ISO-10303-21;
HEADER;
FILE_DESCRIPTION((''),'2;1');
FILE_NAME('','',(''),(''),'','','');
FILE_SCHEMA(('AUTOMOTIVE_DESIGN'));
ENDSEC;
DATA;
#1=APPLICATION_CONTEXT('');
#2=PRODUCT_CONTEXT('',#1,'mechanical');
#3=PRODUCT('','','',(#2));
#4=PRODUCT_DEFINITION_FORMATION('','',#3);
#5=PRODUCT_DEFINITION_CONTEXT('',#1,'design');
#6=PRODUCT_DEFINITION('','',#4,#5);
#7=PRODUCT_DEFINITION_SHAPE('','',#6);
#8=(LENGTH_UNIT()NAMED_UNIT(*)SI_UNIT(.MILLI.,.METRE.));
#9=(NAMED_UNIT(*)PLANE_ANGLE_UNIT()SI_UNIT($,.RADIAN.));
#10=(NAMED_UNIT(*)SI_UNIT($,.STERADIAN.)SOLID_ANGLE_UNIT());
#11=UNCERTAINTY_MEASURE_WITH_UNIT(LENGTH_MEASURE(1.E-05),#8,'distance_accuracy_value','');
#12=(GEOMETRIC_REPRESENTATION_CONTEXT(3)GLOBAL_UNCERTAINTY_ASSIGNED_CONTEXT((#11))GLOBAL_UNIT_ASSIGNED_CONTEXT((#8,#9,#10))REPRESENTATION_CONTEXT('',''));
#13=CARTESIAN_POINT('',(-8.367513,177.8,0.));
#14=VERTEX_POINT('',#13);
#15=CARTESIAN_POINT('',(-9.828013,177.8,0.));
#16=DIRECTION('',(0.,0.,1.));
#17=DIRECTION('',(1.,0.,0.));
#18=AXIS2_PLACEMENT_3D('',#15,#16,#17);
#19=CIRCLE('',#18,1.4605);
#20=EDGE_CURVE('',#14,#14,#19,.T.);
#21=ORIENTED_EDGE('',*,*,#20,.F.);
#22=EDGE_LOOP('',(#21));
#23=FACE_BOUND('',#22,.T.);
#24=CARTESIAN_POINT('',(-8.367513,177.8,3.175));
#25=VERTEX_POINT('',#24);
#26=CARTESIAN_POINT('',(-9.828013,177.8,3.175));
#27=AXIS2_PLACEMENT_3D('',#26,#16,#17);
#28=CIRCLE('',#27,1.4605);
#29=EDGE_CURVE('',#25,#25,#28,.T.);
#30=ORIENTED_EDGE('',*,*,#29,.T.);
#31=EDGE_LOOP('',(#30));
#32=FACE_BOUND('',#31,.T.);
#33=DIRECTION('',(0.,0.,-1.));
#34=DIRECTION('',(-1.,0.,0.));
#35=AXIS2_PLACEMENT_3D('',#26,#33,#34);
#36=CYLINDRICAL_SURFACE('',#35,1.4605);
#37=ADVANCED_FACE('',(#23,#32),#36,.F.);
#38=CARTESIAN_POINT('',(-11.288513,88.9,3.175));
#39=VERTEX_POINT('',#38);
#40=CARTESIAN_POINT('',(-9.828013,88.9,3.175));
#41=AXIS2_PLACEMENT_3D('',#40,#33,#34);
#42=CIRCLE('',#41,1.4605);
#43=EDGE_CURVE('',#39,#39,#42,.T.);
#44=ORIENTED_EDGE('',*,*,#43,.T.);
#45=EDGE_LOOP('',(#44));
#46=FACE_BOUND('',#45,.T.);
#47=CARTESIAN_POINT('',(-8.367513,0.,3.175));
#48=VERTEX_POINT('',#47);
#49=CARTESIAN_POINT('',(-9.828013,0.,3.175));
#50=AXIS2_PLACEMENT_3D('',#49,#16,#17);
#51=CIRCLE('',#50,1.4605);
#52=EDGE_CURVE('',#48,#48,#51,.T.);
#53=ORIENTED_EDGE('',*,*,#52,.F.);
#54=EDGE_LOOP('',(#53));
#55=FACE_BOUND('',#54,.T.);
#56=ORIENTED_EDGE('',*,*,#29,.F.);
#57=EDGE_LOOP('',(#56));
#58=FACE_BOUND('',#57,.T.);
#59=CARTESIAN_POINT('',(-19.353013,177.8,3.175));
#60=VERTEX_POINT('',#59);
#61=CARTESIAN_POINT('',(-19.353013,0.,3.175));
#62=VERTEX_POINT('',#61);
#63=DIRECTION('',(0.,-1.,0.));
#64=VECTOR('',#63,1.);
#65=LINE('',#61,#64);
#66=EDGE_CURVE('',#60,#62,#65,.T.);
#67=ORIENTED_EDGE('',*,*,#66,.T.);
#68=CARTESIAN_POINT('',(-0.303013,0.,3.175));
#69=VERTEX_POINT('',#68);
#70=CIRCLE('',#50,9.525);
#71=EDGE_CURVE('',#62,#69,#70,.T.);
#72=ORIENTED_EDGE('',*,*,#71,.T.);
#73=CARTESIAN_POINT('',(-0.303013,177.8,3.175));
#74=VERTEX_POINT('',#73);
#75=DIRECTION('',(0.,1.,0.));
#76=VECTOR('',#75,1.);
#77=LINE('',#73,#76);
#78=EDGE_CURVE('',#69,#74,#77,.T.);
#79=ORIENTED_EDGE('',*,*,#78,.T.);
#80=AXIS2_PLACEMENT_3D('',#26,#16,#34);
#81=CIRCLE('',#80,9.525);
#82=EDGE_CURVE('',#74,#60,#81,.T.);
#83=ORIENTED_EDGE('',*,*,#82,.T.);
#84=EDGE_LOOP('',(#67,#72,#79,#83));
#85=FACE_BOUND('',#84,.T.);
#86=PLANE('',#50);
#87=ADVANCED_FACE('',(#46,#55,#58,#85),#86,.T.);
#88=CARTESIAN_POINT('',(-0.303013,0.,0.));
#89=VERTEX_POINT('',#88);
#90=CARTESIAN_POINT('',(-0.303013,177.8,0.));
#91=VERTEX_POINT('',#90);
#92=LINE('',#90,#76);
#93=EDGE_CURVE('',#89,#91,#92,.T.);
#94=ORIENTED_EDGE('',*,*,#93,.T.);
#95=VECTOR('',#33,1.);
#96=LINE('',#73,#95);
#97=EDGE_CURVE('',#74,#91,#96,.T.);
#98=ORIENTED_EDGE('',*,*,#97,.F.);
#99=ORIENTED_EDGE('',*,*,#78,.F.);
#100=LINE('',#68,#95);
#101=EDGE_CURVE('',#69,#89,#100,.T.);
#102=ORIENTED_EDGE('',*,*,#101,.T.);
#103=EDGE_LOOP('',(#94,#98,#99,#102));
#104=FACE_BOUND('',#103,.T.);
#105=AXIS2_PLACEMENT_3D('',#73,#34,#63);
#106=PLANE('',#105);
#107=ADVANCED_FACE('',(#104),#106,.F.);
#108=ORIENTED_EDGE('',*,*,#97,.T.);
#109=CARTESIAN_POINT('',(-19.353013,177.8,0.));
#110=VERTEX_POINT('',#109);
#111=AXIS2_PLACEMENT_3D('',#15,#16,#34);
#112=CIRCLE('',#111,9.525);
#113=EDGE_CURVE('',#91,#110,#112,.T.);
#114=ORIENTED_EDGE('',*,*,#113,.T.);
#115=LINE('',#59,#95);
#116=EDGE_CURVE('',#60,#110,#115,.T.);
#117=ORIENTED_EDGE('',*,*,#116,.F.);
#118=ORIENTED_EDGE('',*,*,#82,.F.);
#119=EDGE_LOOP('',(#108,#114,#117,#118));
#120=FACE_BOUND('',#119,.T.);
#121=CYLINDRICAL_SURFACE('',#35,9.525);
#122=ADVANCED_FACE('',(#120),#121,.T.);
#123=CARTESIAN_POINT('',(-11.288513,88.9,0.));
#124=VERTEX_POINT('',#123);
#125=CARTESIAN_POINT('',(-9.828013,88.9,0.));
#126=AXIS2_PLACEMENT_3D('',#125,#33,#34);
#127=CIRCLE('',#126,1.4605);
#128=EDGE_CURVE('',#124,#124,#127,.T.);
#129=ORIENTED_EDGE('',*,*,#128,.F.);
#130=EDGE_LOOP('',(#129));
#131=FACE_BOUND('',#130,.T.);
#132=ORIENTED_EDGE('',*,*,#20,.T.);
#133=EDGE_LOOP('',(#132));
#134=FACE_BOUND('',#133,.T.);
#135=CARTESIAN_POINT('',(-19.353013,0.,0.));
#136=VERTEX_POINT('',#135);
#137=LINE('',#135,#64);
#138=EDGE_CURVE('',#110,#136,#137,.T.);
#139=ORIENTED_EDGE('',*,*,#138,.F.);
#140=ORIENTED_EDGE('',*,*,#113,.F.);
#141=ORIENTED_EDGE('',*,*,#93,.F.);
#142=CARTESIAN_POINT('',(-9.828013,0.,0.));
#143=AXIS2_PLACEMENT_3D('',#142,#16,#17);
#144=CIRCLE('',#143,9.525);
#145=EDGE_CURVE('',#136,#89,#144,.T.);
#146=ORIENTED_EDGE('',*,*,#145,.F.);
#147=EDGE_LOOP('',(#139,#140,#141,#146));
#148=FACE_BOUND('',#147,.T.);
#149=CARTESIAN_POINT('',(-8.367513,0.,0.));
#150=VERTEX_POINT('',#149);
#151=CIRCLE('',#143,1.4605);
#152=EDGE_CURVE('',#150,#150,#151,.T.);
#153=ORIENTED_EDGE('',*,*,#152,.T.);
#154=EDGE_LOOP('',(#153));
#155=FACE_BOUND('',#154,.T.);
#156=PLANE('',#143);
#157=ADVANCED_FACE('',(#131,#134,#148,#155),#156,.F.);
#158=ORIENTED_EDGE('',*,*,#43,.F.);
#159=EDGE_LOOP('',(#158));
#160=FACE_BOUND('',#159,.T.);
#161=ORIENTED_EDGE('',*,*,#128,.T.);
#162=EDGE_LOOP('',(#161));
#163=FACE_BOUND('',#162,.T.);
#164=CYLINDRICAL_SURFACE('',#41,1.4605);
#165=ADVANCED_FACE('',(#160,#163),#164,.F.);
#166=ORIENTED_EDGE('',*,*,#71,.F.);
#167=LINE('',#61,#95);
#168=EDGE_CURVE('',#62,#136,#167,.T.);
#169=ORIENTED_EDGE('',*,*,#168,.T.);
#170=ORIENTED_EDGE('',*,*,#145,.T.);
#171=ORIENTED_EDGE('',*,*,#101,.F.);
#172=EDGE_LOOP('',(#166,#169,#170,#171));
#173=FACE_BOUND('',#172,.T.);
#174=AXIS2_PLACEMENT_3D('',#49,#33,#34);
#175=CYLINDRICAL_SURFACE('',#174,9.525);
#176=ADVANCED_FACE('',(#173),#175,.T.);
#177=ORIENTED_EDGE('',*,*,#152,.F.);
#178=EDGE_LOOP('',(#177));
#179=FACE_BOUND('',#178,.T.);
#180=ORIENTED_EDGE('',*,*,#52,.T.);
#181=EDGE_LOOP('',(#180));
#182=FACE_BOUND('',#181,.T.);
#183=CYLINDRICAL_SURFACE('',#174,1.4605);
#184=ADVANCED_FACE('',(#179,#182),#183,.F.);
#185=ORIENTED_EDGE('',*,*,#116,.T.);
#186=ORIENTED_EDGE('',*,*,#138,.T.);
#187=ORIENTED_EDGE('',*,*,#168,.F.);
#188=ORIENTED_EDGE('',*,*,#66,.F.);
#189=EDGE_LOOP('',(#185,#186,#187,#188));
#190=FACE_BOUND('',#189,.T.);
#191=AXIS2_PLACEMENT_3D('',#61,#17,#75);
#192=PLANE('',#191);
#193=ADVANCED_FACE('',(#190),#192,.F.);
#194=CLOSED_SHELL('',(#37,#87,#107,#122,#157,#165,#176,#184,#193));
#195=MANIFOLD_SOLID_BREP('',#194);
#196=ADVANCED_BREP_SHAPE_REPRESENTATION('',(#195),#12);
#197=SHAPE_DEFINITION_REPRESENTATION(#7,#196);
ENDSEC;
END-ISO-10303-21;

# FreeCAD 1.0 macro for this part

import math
import FreeCAD as App
import Part
import Sketcher

V = App.Vector
Q = App.Units.Quantity

doc = App.newDocument("Part")
body = doc.addObject("PartDesign::Body", "Body")

# Sketch on XY plane
sketch1 = body.newObject("Sketcher::SketchObject", "Sketch")
sketch1.AttachmentSupport = (doc.getObject("XY_Plane"), [""])
sketch1.MapMode = "FlatFace"
sketch1.addGeometry([
    Part.LineSegment(V(-19.353013, 177.8, 0), V(-19.353013, 0, 0)),  # 0
    Part.ArcOfCircle(Part.Circle(V(-9.828013, 0, 0), V(0, 0, 1), 9.525), math.radians(180), math.radians(360)),  # 1
    Part.LineSegment(V(-0.303013, 0, 0), V(-0.303013, 177.8, 0)),  # 2
    Part.ArcOfCircle(Part.Circle(V(-9.828013, 177.8, 0), V(0, 0, 1), 9.525), math.radians(0), math.radians(180)),  # 3
    Part.Circle(V(-9.828013, 0, 0), V(0, 0, 1), 1.4605),  # 4
    Part.Circle(V(-9.828013, 177.8, 0), V(0, 0, 1), 1.4605),  # 5
], False)
sketch1.addConstraint([
    Sketcher.Constraint("Tangent", 0, 2, 1, 1),
    Sketcher.Constraint("Tangent", 1, 2, 2, 1),
    Sketcher.Constraint("Tangent", 2, 2, 3, 1),
    Sketcher.Constraint("Tangent", 3, 2, 0, 1),
    Sketcher.Constraint("Vertical", 0),
    Sketcher.Constraint("Vertical", 2),
    Sketcher.Constraint("Coincident", 4, 3, 1, 3),
    Sketcher.Constraint("Coincident", 5, 3, 3, 3),
    Sketcher.Constraint("Equal", 4, 5),
    Sketcher.Constraint("PointOnObject", 1, 3, -1),
    Sketcher.Constraint("DistanceY", 0, 2, 0, 1, Q("7 in")),
    Sketcher.Constraint("Diameter", 4, Q("0.115 in")),
    Sketcher.Constraint("Radius", 1, Q("0.375 in")),
    Sketcher.Constraint("DistanceX", 1, 3, -1, 1, Q("9.828013 mm")),
])
pad1 = body.newObject("PartDesign::Pad", "Pad")
pad1.Profile = sketch1
pad1.Length = Q("0.125 in")

# Sketch on XY plane
sketch2 = body.newObject("Sketcher::SketchObject", "Sketch001")
sketch2.AttachmentSupport = (doc.getObject("XY_Plane"), [""])
sketch2.MapMode = "FlatFace"
sketch2.addGeometry(Part.Circle(V(-9.828013, 88.9, 0), V(0, 0, 1), 1.4605), False)
sketch2.addConstraint([
    Sketcher.Constraint("Diameter", 0, Q("0.115 in")),
    Sketcher.Constraint("DistanceY", -1, 1, 0, 3, Q("3.5 in")),
    Sketcher.Constraint("DistanceX", 0, 3, -1, 1, Q("9.828013 mm")),
])
pocket1 = body.newObject("PartDesign::Pocket", "Pocket")
pocket1.Profile = sketch2
pocket1.Length = Q("0.125 in")
pocket1.Reversed = True

doc.recompute()
